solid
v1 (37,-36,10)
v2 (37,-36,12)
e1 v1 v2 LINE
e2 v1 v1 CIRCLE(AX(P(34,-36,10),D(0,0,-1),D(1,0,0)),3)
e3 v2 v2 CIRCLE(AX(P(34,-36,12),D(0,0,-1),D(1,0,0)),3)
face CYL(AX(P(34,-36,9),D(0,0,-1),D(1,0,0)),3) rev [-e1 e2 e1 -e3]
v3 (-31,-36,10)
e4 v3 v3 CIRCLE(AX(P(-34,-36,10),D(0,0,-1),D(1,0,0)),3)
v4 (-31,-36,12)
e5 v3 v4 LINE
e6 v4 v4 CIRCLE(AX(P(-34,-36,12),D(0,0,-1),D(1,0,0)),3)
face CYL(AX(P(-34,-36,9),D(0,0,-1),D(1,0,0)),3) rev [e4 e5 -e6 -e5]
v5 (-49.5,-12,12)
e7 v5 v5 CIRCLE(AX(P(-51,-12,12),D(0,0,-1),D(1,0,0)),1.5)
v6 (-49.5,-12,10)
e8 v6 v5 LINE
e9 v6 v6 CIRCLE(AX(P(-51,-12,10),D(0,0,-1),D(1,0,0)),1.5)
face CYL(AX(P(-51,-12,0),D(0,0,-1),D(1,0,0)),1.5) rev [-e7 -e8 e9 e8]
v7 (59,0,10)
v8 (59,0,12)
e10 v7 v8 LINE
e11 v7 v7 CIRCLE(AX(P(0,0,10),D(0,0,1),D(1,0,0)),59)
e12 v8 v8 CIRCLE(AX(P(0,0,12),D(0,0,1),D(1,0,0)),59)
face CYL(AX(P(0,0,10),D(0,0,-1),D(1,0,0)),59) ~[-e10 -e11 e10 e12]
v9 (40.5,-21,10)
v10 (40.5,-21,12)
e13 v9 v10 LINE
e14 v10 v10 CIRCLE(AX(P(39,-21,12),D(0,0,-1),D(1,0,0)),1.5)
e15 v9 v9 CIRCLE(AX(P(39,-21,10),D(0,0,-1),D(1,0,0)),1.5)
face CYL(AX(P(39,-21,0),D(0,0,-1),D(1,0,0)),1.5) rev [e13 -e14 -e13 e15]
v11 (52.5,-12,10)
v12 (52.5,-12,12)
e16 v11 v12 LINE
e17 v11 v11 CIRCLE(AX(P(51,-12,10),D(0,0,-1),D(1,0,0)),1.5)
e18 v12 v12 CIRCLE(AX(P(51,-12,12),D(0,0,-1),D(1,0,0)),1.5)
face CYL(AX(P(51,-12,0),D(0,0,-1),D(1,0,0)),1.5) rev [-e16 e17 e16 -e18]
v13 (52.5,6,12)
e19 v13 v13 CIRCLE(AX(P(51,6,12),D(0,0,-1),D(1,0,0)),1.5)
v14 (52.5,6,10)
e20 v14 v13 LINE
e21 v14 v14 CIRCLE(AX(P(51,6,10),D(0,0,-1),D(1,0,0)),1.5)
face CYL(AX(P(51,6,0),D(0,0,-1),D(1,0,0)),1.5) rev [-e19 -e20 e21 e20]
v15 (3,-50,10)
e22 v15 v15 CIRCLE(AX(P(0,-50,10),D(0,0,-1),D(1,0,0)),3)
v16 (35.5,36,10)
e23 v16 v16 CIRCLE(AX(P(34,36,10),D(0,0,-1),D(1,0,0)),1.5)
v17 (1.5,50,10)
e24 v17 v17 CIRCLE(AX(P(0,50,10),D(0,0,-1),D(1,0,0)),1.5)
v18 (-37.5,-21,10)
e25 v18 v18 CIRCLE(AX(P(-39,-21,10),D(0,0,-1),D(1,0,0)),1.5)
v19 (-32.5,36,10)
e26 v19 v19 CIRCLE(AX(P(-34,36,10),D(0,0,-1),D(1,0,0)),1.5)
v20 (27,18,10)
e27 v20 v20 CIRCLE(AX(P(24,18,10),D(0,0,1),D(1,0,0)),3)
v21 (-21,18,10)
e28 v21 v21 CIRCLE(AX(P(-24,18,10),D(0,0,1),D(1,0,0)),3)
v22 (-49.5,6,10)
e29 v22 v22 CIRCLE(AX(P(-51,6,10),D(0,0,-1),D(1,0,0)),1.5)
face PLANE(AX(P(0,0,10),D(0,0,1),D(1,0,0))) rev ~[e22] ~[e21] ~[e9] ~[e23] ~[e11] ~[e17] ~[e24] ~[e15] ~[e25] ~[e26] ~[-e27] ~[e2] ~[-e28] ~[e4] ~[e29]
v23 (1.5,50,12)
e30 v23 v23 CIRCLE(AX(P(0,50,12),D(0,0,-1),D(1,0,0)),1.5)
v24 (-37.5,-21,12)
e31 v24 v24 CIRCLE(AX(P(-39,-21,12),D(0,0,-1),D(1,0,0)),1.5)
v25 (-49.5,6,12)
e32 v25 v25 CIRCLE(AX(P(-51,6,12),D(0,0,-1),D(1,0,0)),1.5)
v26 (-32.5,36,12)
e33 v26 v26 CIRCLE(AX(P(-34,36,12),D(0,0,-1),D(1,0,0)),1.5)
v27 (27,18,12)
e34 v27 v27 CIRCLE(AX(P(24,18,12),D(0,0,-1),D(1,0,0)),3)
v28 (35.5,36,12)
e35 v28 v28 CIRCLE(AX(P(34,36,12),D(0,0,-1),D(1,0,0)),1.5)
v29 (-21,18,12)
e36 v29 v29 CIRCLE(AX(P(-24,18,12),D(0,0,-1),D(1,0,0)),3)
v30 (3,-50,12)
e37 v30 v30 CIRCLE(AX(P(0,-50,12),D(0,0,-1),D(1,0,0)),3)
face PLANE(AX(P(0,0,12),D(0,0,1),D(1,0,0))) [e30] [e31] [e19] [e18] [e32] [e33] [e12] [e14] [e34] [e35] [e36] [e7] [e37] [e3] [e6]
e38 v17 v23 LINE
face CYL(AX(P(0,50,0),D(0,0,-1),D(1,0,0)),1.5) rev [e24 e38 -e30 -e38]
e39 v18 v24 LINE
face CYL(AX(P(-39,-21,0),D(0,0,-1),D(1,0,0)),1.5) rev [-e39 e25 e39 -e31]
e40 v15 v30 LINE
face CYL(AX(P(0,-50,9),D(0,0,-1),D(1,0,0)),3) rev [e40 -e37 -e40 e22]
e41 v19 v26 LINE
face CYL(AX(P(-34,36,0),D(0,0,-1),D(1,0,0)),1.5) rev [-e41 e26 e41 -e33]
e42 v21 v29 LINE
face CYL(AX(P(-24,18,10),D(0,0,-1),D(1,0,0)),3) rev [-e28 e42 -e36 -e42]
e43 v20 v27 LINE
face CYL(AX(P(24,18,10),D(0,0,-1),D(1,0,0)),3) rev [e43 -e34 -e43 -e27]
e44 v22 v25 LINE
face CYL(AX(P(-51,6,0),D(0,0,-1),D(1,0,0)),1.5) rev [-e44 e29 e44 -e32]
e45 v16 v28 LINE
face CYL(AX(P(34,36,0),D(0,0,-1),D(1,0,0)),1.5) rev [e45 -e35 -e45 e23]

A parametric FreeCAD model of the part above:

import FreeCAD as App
import Part
import Sketcher

doc = App.newDocument("Part")
body = doc.addObject("PartDesign::Body", "Body")

sketch1 = doc.addObject("Sketcher::SketchObject", "Sketch")
body.addObject(sketch1)
sketch1.AttachmentSupport = (doc.XY_Plane, [""])
sketch1.MapMode = "FlatFace"
sketch1.addGeometry(Part.Circle(App.Vector(39, -21, 0), App.Vector(0, 0, 1), 1.5), False)
sketch1.addConstraint([
    Sketcher.Constraint("Diameter", 0, 3.0),
    Sketcher.Constraint("DistanceX", -1, 1, 0, 3, 39.0),
    Sketcher.Constraint("DistanceY", 0, 3, -1, 1, 21.0),
])
pad1 = doc.addObject("PartDesign::Pad", "Pad")
body.addObject(pad1)
pad1.Profile = sketch1
pad1.Length = 100
body2 = doc.addObject("PartDesign::Body", "Body001")
body2.AllowCompound = True

sketch2 = doc.addObject("Sketcher::SketchObject", "Sketch001")
body2.addObject(sketch2)
sketch2.AttachmentSupport = (doc.getObject("XY_Plane001"), [""])
sketch2.MapMode = "FlatFace"
sketch2.addGeometry(Part.Circle(App.Vector(-39, -21, 0), App.Vector(0, 0, 1), 1.5), False)
sketch2.addConstraint([
    Sketcher.Constraint("Diameter", 0, 3.0),
    Sketcher.Constraint("DistanceX", 0, 3, -1, 1, 39.0),
    Sketcher.Constraint("DistanceY", 0, 3, -1, 1, 21.0),
])
pad2 = doc.addObject("PartDesign::Pad", "Pad001")
body2.addObject(pad2)
pad2.Profile = sketch2
pad2.Length = 100
doc.recompute()

boolean = doc.addObject("PartDesign::Boolean", "Boolean")
body2.addObject(boolean)
boolean.Type = "Fuse"
boolean.addObjects([body])
body3 = doc.addObject("PartDesign::Body", "Body002")

sketch3 = doc.addObject("Sketcher::SketchObject", "Sketch002")
body3.addObject(sketch3)
sketch3.AttachmentSupport = (doc.getObject("XY_Plane002"), [""])
sketch3.MapMode = "FlatFace"
sketch3.AttachmentOffset = App.Placement(App.Vector(0, 0, 9), App.Rotation())
sketch3.addGeometry(Part.Circle(App.Vector(0, -50, 0), App.Vector(0, 0, 1), 3), False)
sketch3.addConstraint([
    Sketcher.Constraint("PointOnObject", 0, 3, -2),
    Sketcher.Constraint("Diameter", 0, 6.0),
    Sketcher.Constraint("DistanceY", 0, 3, -1, 1, 50.0),
])
pad3 = doc.addObject("PartDesign::Pad", "Pad002")
body3.addObject(pad3)
pad3.Profile = sketch3
pad3.Length = 4
body4 = doc.addObject("PartDesign::Body", "Body003")

sketch4 = doc.addObject("Sketcher::SketchObject", "Sketch003")
body4.addObject(sketch4)
sketch4.AttachmentSupport = (doc.getObject("XY_Plane003"), [""])
sketch4.MapMode = "FlatFace"
sketch4.addGeometry(Part.Circle(App.Vector(0, 50, 0), App.Vector(0, 0, 1), 1.5), False)
sketch4.addConstraint([
    Sketcher.Constraint("PointOnObject", 0, 3, -2),
    Sketcher.Constraint("Diameter", 0, 3.0),
    Sketcher.Constraint("DistanceY", -1, 1, 0, 3, 50.0),
])
pad4 = doc.addObject("PartDesign::Pad", "Pad003")
body4.addObject(pad4)
pad4.Profile = sketch4
pad4.Length = 50
body5 = doc.addObject("PartDesign::Body", "Body004")

sketch5 = doc.addObject("Sketcher::SketchObject", "Sketch004")
body5.addObject(sketch5)
sketch5.AttachmentSupport = (doc.getObject("XY_Plane004"), [""])
sketch5.MapMode = "FlatFace"
sketch5.addGeometry(Part.Circle(App.Vector(-34, -36, 0), App.Vector(0, 0, 1), 3), False)
sketch5.addConstraint([
    Sketcher.Constraint("Diameter", 0, 6.0),
    Sketcher.Constraint("DistanceX", 0, 3, -1, 1, 34.0),
    Sketcher.Constraint("DistanceY", 0, 3, -1, 1, 36.0),
])
pad5 = doc.addObject("PartDesign::Pad", "Pad004")
body5.addObject(pad5)
pad5.Profile = sketch5
pad5.Length = 4
body6 = doc.addObject("PartDesign::Body", "Body005")
body6.AllowCompound = True

sketch6 = doc.addObject("Sketcher::SketchObject", "Sketch005")
body6.addObject(sketch6)
sketch6.AttachmentSupport = (doc.getObject("XY_Plane005"), [""])
sketch6.MapMode = "FlatFace"
sketch6.addGeometry(Part.Circle(App.Vector(34, -36, 0), App.Vector(0, 0, 1), 3), False)
sketch6.addConstraint([
    Sketcher.Constraint("Diameter", 0, 6.0),
    Sketcher.Constraint("DistanceX", -1, 1, 0, 3, 34.0),
    Sketcher.Constraint("DistanceY", 0, 3, -1, 1, 36.0),
])
pad6 = doc.addObject("PartDesign::Pad", "Pad005")
body6.addObject(pad6)
pad6.Profile = sketch6
pad6.Length = 4
doc.recompute()

boolean2 = doc.addObject("PartDesign::Boolean", "Boolean001")
body6.addObject(boolean2)
boolean2.Type = "Fuse"
boolean2.addObjects([body5])
body7 = doc.addObject("PartDesign::Body", "Body006")
body7.AllowCompound = True
doc.recompute()

body6.Placement = App.Placement(App.Vector(0, 0, 9), App.Rotation(App.Vector(0, 0, 1), 0))
boolean3 = doc.addObject("PartDesign::Boolean", "Boolean002")
body7.addObject(boolean3)
boolean3.Type = "Fuse"
boolean3.addObjects([body6])
body8 = doc.addObject("PartDesign::Body", "Body007")

sketch7 = doc.addObject("Sketcher::SketchObject", "Sketch006")
body8.addObject(sketch7)
sketch7.AttachmentSupport = (doc.getObject("XY_Plane007"), [""])
sketch7.MapMode = "FlatFace"
sketch7.addGeometry(Part.Circle(App.Vector(24, 18, 0), App.Vector(0, 0, 1), 3), False)
sketch7.addConstraint([
    Sketcher.Constraint("Diameter", 0, 6.0),
    Sketcher.Constraint("DistanceX", -1, 1, 0, 3, 24.0),
    Sketcher.Constraint("DistanceY", -1, 1, 0, 3, 18.0),
])
pad7 = doc.addObject("PartDesign::Pad", "Pad006")
body8.addObject(pad7)
pad7.Profile = sketch7
pad7.Length = 4
body9 = doc.addObject("PartDesign::Body", "Body008")
body9.AllowCompound = True

sketch8 = doc.addObject("Sketcher::SketchObject", "Sketch007")
body9.addObject(sketch8)
sketch8.AttachmentSupport = (doc.getObject("XY_Plane008"), [""])
sketch8.MapMode = "FlatFace"
sketch8.addGeometry(Part.Circle(App.Vector(-24, 18, 0), App.Vector(0, 0, 1), 3), False)
sketch8.addConstraint([
    Sketcher.Constraint("Diameter", 0, 6.0),
    Sketcher.Constraint("DistanceX", 0, 3, -1, 1, 24.0),
    Sketcher.Constraint("DistanceY", -1, 1, 0, 3, 18.0),
])
pad8 = doc.addObject("PartDesign::Pad", "Pad007")
body9.addObject(pad8)
pad8.Profile = sketch8
pad8.Length = 4
doc.recompute()

boolean4 = doc.addObject("PartDesign::Boolean", "Boolean003")
body9.addObject(boolean4)
boolean4.Type = "Fuse"
boolean4.addObjects([body8])
body10 = doc.addObject("PartDesign::Body", "Body009")
body10.AllowCompound = True
doc.recompute()

body9.Placement = App.Placement(App.Vector(0, 0, 10), App.Rotation(App.Vector(0, 0, 1), 0))
boolean5 = doc.addObject("PartDesign::Boolean", "Boolean004")
body10.addObject(boolean5)
boolean5.Type = "Fuse"
boolean5.addObjects([body9])
body11 = doc.addObject("PartDesign::Body", "Body010")

sketch9 = doc.addObject("Sketcher::SketchObject", "Sketch008")
body11.addObject(sketch9)
sketch9.AttachmentSupport = (doc.getObject("XY_Plane010"), [""])
sketch9.MapMode = "FlatFace"
sketch9.addGeometry(Part.Circle(App.Vector(-34, 36, 0), App.Vector(0, 0, 1), 1.5), False)
sketch9.addConstraint([
    Sketcher.Constraint("Diameter", 0, 3.0),
    Sketcher.Constraint("DistanceX", 0, 3, -1, 1, 34.0),
    Sketcher.Constraint("DistanceY", -1, 1, 0, 3, 36.0),
])
pad9 = doc.addObject("PartDesign::Pad", "Pad008")
body11.addObject(pad9)
pad9.Profile = sketch9
pad9.Length = 50
body12 = doc.addObject("PartDesign::Body", "Body011")

sketch10 = doc.addObject("Sketcher::SketchObject", "Sketch009")
body12.addObject(sketch10)
sketch10.AttachmentSupport = (doc.getObject("XY_Plane011"), [""])
sketch10.MapMode = "FlatFace"
sketch10.addGeometry(Part.Circle(App.Vector(34, 36, 0), App.Vector(0, 0, 1), 1.5), False)
sketch10.addConstraint([
    Sketcher.Constraint("Diameter", 0, 3.0),
    Sketcher.Constraint("DistanceX", -1, 1, 0, 3, 34.0),
    Sketcher.Constraint("DistanceY", -1, 1, 0, 3, 36.0),
])
pad10 = doc.addObject("PartDesign::Pad", "Pad009")
body12.addObject(pad10)
pad10.Profile = sketch10
pad10.Length = 50
body13 = doc.addObject("PartDesign::Body", "Body012")

sketch11 = doc.addObject("Sketcher::SketchObject", "Sketch010")
body13.addObject(sketch11)
sketch11.AttachmentSupport = (doc.getObject("XY_Plane012"), [""])
sketch11.MapMode = "FlatFace"
sketch11.addGeometry(Part.Circle(App.Vector(51, 6, 0), App.Vector(0, 0, 1), 1.5), False)
sketch11.addConstraint([
    Sketcher.Constraint("Diameter", 0, 3.0),
    Sketcher.Constraint("DistanceX", -1, 1, 0, 3, 51.0),
    Sketcher.Constraint("DistanceY", -1, 1, 0, 3, 6.0),
])
pad11 = doc.addObject("PartDesign::Pad", "Pad010")
body13.addObject(pad11)
pad11.Profile = sketch11
pad11.Length = 50
body14 = doc.addObject("PartDesign::Body", "Body013")

sketch12 = doc.addObject("Sketcher::SketchObject", "Sketch011")
body14.addObject(sketch12)
sketch12.AttachmentSupport = (doc.getObject("XY_Plane013"), [""])
sketch12.MapMode = "FlatFace"
sketch12.addGeometry(Part.Circle(App.Vector(-51, 6, 0), App.Vector(0, 0, 1), 1.5), False)
sketch12.addConstraint([
    Sketcher.Constraint("Diameter", 0, 3.0),
    Sketcher.Constraint("DistanceX", 0, 3, -1, 1, 51.0),
    Sketcher.Constraint("DistanceY", -1, 1, 0, 3, 6.0),
])
pad12 = doc.addObject("PartDesign::Pad", "Pad011")
body14.addObject(pad12)
pad12.Profile = sketch12
pad12.Length = 50
body15 = doc.addObject("PartDesign::Body", "Body014")

sketch13 = doc.addObject("Sketcher::SketchObject", "Sketch012")
body15.addObject(sketch13)
sketch13.AttachmentSupport = (doc.getObject("XY_Plane014"), [""])
sketch13.MapMode = "FlatFace"
sketch13.addGeometry(Part.Circle(App.Vector(51, -12, 0), App.Vector(0, 0, 1), 1.5), False)
sketch13.addConstraint([
    Sketcher.Constraint("Diameter", 0, 3.0),
    Sketcher.Constraint("DistanceX", -1, 1, 0, 3, 51.0),
    Sketcher.Constraint("DistanceY", 0, 3, -1, 1, 12.0),
])
pad13 = doc.addObject("PartDesign::Pad", "Pad012")
body15.addObject(pad13)
pad13.Profile = sketch13
pad13.Length = 100
body16 = doc.addObject("PartDesign::Body", "Body015")
body16.AllowCompound = True

sketch14 = doc.addObject("Sketcher::SketchObject", "Sketch013")
body16.addObject(sketch14)
sketch14.AttachmentSupport = (doc.getObject("XY_Plane015"), [""])
sketch14.MapMode = "FlatFace"
sketch14.addGeometry(Part.Circle(App.Vector(-51, -12, 0), App.Vector(0, 0, 1), 1.5), False)
sketch14.addConstraint([
    Sketcher.Constraint("Diameter", 0, 3.0),
    Sketcher.Constraint("DistanceX", 0, 3, -1, 1, 51.0),
    Sketcher.Constraint("DistanceY", 0, 3, -1, 1, 12.0),
])
pad14 = doc.addObject("PartDesign::Pad", "Pad013")
body16.addObject(pad14)
pad14.Profile = sketch14
pad14.Length = 100
doc.recompute()

boolean6 = doc.addObject("PartDesign::Boolean", "Boolean005")
body16.addObject(boolean6)
boolean6.Type = "Fuse"
boolean6.addObjects([body11])
doc.recompute()

boolean7 = doc.addObject("PartDesign::Boolean", "Boolean006")
body16.addObject(boolean7)
boolean7.Type = "Fuse"
boolean7.addObjects([body12])
doc.recompute()

boolean8 = doc.addObject("PartDesign::Boolean", "Boolean007")
body16.addObject(boolean8)
boolean8.Type = "Fuse"
boolean8.addObjects([body13])
doc.recompute()

boolean9 = doc.addObject("PartDesign::Boolean", "Boolean008")
body16.addObject(boolean9)
boolean9.Type = "Fuse"
boolean9.addObjects([body14])
doc.recompute()

boolean10 = doc.addObject("PartDesign::Boolean", "Boolean009")
body16.addObject(boolean10)
boolean10.Type = "Fuse"
boolean10.addObjects([body15])
body17 = doc.addObject("PartDesign::Body", "Body016")

sketch15 = doc.addObject("Sketcher::SketchObject", "Sketch014")
body17.addObject(sketch15)
sketch15.AttachmentSupport = (doc.getObject("XY_Plane016"), [""])
sketch15.MapMode = "FlatFace"
sketch15.AttachmentOffset = App.Placement(App.Vector(0, 0, 10), App.Rotation())
sketch15.addGeometry(Part.Circle(App.Vector(0, 0, 0), App.Vector(0, 0, 1), 59), False)
sketch15.addConstraint([
    Sketcher.Constraint("Coincident", 0, 3, -1, 1),
    Sketcher.Constraint("Diameter", 0, 118.0),
])
pad15 = doc.addObject("PartDesign::Pad", "Pad014")
body17.addObject(pad15)
pad15.Profile = sketch15
pad15.Length = 2
doc.recompute()

boolean11 = doc.addObject("PartDesign::Boolean", "Boolean010")
body17.addObject(boolean11)
boolean11.Type = "Cut"
boolean11.addObjects([body16])
doc.recompute()

boolean12 = doc.addObject("PartDesign::Boolean", "Boolean011")
body17.addObject(boolean12)
boolean12.Type = "Cut"
boolean12.addObjects([body10])
doc.recompute()

boolean13 = doc.addObject("PartDesign::Boolean", "Boolean012")
body17.addObject(boolean13)
boolean13.Type = "Cut"
boolean13.addObjects([body7])
doc.recompute()

boolean14 = doc.addObject("PartDesign::Boolean", "Boolean013")
body17.addObject(boolean14)
boolean14.Type = "Cut"
boolean14.addObjects([body4])
doc.recompute()

boolean15 = doc.addObject("PartDesign::Boolean", "Boolean014")
body17.addObject(boolean15)
boolean15.Type = "Cut"
boolean15.addObjects([body3])
doc.recompute()

boolean16 = doc.addObject("PartDesign::Boolean", "Boolean015")
body17.addObject(boolean16)
boolean16.Type = "Cut"
boolean16.addObjects([body2])

doc.recompute()
